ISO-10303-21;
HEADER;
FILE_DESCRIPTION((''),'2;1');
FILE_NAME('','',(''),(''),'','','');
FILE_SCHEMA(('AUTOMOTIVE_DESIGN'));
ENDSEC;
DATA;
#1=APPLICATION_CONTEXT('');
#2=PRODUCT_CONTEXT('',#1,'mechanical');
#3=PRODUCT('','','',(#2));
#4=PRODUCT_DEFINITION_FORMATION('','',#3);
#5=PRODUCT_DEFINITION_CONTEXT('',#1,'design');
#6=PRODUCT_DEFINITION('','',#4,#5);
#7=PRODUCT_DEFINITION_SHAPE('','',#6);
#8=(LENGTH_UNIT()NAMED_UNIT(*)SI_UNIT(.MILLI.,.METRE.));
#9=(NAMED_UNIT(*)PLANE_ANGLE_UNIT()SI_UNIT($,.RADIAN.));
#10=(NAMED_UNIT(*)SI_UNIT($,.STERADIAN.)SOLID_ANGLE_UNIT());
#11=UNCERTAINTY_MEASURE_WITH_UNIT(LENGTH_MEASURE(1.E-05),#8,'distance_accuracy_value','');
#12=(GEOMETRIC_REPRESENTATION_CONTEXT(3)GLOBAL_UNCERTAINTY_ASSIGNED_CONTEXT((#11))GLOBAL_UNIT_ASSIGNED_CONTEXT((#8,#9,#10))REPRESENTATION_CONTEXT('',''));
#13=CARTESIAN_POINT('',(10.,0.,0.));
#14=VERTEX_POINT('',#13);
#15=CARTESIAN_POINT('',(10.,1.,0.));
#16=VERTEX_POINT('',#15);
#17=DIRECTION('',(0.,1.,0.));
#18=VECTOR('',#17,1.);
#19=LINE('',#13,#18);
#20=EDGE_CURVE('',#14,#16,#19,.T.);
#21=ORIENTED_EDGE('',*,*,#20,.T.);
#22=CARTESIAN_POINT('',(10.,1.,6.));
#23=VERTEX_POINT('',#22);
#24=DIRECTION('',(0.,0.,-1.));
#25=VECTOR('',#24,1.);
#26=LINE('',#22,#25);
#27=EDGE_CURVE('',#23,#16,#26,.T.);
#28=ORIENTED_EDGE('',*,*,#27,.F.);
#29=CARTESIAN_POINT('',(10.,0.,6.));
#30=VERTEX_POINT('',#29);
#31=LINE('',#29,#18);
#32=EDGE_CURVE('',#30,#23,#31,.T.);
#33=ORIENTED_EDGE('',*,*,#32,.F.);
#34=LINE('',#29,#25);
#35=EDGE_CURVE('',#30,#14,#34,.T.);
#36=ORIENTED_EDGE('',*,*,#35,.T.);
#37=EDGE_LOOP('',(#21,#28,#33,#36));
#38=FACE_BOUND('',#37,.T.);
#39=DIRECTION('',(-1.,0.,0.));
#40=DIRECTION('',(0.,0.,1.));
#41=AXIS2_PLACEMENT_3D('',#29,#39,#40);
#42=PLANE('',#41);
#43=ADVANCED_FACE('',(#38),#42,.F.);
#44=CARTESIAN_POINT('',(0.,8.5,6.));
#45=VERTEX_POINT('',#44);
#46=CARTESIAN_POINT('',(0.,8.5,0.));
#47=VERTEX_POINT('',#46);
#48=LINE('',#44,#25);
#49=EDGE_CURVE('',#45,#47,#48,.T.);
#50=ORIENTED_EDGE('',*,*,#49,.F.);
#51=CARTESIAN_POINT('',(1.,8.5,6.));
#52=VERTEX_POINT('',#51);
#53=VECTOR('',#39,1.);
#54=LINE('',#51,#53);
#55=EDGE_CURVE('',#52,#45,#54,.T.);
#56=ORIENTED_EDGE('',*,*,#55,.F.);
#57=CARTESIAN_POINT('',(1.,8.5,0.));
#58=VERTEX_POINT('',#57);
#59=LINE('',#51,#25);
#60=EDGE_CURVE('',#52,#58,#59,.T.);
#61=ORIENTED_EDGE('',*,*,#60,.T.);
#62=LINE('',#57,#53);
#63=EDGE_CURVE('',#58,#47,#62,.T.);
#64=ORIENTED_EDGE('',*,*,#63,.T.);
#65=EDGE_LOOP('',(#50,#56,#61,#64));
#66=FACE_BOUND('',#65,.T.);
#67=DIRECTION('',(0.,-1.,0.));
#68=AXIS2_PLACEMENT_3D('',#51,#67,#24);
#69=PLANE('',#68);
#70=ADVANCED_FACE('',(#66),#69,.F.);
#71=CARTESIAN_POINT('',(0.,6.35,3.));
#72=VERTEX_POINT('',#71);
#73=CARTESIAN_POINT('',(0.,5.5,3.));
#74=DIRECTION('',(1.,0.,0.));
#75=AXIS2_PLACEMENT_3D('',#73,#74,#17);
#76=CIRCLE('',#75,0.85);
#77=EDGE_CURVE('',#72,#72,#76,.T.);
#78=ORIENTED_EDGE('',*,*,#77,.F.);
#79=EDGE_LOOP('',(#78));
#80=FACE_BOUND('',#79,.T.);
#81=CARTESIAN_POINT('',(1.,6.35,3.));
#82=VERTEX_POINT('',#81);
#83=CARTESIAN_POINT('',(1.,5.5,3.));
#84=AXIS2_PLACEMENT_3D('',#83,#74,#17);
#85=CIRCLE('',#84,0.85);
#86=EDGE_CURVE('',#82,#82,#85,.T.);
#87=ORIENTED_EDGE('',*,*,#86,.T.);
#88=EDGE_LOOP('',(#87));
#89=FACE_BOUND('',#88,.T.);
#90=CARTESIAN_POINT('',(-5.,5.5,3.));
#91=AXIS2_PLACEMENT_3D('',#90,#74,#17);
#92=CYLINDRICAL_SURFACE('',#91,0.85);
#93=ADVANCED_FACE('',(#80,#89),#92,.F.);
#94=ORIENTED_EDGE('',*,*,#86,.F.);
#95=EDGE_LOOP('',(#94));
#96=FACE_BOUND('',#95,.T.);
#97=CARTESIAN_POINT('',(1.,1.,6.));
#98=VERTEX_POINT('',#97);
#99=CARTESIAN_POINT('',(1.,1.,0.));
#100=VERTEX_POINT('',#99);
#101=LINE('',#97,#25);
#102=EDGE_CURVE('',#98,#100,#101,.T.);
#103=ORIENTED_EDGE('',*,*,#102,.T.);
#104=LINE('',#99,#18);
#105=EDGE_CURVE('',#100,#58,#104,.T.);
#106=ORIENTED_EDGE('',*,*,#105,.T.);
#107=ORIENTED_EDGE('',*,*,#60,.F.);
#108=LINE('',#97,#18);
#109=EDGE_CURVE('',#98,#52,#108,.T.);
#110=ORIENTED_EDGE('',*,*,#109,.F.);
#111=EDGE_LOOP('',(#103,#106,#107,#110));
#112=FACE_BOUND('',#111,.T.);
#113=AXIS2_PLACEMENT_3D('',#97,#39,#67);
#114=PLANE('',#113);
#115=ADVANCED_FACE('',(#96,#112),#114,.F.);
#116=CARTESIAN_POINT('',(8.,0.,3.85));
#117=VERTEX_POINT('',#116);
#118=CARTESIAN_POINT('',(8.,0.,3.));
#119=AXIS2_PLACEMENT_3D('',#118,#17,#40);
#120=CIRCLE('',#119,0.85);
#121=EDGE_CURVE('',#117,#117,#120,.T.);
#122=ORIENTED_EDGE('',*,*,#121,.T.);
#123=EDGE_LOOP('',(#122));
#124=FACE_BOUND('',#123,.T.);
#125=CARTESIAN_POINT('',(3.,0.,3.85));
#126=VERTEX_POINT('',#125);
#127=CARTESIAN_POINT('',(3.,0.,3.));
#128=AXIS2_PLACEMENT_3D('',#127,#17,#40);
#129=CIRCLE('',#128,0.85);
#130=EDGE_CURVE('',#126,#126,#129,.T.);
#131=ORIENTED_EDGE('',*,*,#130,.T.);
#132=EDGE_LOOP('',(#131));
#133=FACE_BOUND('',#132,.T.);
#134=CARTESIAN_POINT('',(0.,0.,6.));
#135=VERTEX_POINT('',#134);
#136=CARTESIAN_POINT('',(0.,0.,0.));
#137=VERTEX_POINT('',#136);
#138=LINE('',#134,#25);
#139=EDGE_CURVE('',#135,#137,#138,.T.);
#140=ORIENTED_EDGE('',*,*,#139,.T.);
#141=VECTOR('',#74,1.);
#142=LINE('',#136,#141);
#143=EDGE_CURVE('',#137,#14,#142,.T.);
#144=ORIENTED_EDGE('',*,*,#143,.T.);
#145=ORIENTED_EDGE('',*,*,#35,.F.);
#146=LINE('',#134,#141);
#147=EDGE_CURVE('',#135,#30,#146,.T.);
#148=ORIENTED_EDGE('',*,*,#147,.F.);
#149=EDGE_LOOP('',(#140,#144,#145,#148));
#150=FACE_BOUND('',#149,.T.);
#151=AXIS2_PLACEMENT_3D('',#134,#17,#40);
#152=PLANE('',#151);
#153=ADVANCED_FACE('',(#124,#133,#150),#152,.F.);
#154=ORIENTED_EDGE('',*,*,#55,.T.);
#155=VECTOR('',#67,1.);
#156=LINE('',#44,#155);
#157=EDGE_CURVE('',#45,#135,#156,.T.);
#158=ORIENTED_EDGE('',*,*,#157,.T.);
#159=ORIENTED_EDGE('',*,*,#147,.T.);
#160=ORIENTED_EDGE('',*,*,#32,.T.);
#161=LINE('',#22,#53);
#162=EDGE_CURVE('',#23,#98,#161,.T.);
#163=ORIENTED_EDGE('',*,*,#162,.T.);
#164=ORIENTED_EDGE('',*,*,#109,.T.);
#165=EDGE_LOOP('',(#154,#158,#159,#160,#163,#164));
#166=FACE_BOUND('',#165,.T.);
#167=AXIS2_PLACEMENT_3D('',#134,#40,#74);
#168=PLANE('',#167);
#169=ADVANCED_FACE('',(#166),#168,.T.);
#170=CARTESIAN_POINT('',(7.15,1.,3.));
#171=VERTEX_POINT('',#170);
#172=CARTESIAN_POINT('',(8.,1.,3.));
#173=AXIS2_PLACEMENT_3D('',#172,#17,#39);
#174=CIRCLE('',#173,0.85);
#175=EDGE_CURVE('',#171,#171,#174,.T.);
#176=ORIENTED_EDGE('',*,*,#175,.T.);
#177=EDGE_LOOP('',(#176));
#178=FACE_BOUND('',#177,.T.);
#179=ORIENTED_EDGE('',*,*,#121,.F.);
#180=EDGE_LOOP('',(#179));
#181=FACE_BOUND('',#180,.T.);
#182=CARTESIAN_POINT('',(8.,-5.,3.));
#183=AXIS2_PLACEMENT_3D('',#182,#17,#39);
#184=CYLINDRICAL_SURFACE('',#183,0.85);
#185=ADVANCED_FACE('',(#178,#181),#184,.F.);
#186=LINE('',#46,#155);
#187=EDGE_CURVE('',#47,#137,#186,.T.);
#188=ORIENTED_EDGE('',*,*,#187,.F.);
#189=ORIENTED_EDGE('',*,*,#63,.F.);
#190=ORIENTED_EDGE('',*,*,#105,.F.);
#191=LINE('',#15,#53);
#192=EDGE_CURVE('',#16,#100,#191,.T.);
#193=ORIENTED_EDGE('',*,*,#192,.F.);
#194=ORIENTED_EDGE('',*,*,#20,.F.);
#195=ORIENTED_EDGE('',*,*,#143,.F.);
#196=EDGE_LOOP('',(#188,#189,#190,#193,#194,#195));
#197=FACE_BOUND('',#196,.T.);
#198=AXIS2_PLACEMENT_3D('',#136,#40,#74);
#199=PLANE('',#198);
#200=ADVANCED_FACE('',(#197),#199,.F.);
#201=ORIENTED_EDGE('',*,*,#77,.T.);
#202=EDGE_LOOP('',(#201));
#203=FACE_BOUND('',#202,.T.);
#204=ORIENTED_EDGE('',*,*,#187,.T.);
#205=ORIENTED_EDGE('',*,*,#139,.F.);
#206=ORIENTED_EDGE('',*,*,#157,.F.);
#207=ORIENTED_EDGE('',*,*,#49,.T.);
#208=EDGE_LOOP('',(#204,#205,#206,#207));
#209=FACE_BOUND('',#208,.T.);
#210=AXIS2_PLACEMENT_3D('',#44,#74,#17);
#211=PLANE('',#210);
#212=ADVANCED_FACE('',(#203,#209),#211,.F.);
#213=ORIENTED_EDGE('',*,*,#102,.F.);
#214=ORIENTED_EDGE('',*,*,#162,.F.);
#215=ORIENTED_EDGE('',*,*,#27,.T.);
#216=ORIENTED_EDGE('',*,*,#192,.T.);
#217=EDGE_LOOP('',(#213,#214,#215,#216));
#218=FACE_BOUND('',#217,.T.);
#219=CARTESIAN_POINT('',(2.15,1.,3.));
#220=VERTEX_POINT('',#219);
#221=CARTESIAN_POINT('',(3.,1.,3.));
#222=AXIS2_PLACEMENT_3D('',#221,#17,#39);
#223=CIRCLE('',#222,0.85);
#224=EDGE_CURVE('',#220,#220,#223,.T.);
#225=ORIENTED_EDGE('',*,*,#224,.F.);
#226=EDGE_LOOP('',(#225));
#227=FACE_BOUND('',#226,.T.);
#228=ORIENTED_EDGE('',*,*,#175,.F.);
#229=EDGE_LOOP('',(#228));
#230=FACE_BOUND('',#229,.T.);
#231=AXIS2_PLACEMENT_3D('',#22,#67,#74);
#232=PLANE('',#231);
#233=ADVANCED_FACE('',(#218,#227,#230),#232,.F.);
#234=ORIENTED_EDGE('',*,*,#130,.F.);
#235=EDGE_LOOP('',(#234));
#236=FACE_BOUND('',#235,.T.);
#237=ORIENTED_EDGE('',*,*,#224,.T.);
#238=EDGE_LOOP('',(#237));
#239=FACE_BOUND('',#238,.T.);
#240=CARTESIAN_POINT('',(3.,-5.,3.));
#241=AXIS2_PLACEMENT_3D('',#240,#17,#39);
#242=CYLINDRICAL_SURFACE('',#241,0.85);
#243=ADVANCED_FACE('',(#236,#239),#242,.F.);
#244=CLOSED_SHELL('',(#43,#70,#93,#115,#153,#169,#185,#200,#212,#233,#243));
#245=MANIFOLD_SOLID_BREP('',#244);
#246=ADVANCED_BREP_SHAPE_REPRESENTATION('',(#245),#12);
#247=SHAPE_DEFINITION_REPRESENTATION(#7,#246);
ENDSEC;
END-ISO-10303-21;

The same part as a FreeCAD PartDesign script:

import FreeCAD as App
import Part
import Sketcher
Q = App.Units.Quantity


def add_polygon(sketch, points):
    """Adds a closed chain of lines whose ends are joined by coincident constraints."""
    first, n = sketch.GeometryCount, len(points)
    for a, b in zip(points, points[1:] + points[:1]):
        sketch.addGeometry(Part.LineSegment(App.Vector(*a, 0), App.Vector(*b, 0)), False)
    for i in range(n):
        sketch.addConstraint(Sketcher.Constraint("Coincident", first + i, 2, first + (i + 1) % n, 1))

doc = App.newDocument("Part")
params = doc.addObject("Spreadsheet::Sheet", "Params")
for row, (alias, value) in enumerate([
    ("sketch1_width", "10 mm"),
    ("sketch1_width2", "9 mm"),
    ("sketch1_height", "7.5 mm"),
    ("pad1_length", "6 mm"),
    ("sketch2_diameter", "1.7 mm"),
    ("pocket1_length", "6 mm"),
    ("sketch3_diameter", "1.7 mm"),
    ("pocket2_length", "6 mm"),
], start=1):
    params.set(f"A{row}", alias)
    params.set(f"B{row}", "=" + value)
    params.setAlias(f"B{row}", alias)

body = doc.addObject("PartDesign::Body", "Body")

# Sketch on XY plane
sketch1 = body.newObject("Sketcher::SketchObject", "Sketch")
sketch1.AttachmentSupport = (doc.getObject("XY_Plane"), [""])
sketch1.MapMode = "FlatFace"
add_polygon(sketch1, [(0, 0), (10, 0), (10, 1), (1, 1), (1, 8.5), (0, 8.5)])  # lines 0-5
sketch1.addConstraint([
    Sketcher.Constraint("Horizontal", 0),
    Sketcher.Constraint("Vertical", 1),
    Sketcher.Constraint("Horizontal", 2),
    Sketcher.Constraint("Vertical", 3),
    Sketcher.Constraint("Horizontal", 4),
    Sketcher.Constraint("Vertical", 5),
    Sketcher.Constraint("Coincident", 5, 2, -1, 1),
    Sketcher.Constraint("Equal", 4, 1),
    Sketcher.Constraint("DistanceX", 0, 1, 0, 2, Q("10 mm")),
    Sketcher.Constraint("DistanceX", 2, 2, 2, 1, Q("9 mm")),
    Sketcher.Constraint("DistanceY", 3, 1, 3, 2, Q("7.5 mm")),
])
sketch1.setExpression("Constraints[14]", "Params.sketch1_width")
sketch1.setExpression("Constraints[15]", "Params.sketch1_width2")
sketch1.setExpression("Constraints[16]", "Params.sketch1_height")
pad1 = body.newObject("PartDesign::Pad", "Pad")
pad1.Profile = sketch1
pad1.setExpression("Length", "Params.pad1_length")

# Sketch on YZ plane
sketch2 = body.newObject("Sketcher::SketchObject", "Sketch001")
sketch2.AttachmentSupport = (doc.getObject("YZ_Plane"), [""])
sketch2.MapMode = "FlatFace"
sketch2.AttachmentOffset = App.Placement(App.Vector(0, 0, 1), App.Rotation())
sketch2.addGeometry(Part.Circle(App.Vector(5.5, 3, 0), App.Vector(0, 0, 1), 0.85), False)
sketch2.addConstraint([
    Sketcher.Constraint("Diameter", 0, Q("1.7 mm")),
    Sketcher.Constraint("DistanceY", -1, 1, 0, 3, Q("3 mm")),
    Sketcher.Constraint("DistanceX", -1, 1, 0, 3, Q("5.5 mm")),
])
sketch2.setExpression("Constraints[0]", "Params.sketch2_diameter")
pocket1 = body.newObject("PartDesign::Pocket", "Pocket")
pocket1.Profile = sketch2
pocket1.setExpression("Length", "Params.pocket1_length")

# Sketch on XZ plane
sketch3 = body.newObject("Sketcher::SketchObject", "Sketch002")
sketch3.AttachmentSupport = (doc.getObject("XZ_Plane"), [""])
sketch3.MapMode = "FlatFace"
sketch3.AttachmentOffset = App.Placement(App.Vector(0, 0, -1), App.Rotation())
sketch3.addGeometry([
    Part.Circle(App.Vector(3, 3, 0), App.Vector(0, 0, 1), 0.85),
    Part.Circle(App.Vector(8, 3, 0), App.Vector(0, 0, 1), 0.85),
], False)
sketch3.addConstraint([
    Sketcher.Constraint("Equal", 0, 1),
    Sketcher.Constraint("Horizontal", 0, 3, 1, 3),
    Sketcher.Constraint("Diameter", 0, Q("1.7 mm")),
    Sketcher.Constraint("DistanceX", -1, 1, 0, 3, Q("3 mm")),
    Sketcher.Constraint("DistanceY", -1, 1, 0, 3, Q("3 mm")),
    Sketcher.Constraint("DistanceX", -1, 1, 1, 3, Q("8 mm")),
])
sketch3.setExpression("Constraints[2]", "Params.sketch3_diameter")
pocket2 = body.newObject("PartDesign::Pocket", "Pocket001")
pocket2.Profile = sketch3
pocket2.setExpression("Length", "Params.pocket2_length")
pocket2.Reversed = True

doc.recompute()
